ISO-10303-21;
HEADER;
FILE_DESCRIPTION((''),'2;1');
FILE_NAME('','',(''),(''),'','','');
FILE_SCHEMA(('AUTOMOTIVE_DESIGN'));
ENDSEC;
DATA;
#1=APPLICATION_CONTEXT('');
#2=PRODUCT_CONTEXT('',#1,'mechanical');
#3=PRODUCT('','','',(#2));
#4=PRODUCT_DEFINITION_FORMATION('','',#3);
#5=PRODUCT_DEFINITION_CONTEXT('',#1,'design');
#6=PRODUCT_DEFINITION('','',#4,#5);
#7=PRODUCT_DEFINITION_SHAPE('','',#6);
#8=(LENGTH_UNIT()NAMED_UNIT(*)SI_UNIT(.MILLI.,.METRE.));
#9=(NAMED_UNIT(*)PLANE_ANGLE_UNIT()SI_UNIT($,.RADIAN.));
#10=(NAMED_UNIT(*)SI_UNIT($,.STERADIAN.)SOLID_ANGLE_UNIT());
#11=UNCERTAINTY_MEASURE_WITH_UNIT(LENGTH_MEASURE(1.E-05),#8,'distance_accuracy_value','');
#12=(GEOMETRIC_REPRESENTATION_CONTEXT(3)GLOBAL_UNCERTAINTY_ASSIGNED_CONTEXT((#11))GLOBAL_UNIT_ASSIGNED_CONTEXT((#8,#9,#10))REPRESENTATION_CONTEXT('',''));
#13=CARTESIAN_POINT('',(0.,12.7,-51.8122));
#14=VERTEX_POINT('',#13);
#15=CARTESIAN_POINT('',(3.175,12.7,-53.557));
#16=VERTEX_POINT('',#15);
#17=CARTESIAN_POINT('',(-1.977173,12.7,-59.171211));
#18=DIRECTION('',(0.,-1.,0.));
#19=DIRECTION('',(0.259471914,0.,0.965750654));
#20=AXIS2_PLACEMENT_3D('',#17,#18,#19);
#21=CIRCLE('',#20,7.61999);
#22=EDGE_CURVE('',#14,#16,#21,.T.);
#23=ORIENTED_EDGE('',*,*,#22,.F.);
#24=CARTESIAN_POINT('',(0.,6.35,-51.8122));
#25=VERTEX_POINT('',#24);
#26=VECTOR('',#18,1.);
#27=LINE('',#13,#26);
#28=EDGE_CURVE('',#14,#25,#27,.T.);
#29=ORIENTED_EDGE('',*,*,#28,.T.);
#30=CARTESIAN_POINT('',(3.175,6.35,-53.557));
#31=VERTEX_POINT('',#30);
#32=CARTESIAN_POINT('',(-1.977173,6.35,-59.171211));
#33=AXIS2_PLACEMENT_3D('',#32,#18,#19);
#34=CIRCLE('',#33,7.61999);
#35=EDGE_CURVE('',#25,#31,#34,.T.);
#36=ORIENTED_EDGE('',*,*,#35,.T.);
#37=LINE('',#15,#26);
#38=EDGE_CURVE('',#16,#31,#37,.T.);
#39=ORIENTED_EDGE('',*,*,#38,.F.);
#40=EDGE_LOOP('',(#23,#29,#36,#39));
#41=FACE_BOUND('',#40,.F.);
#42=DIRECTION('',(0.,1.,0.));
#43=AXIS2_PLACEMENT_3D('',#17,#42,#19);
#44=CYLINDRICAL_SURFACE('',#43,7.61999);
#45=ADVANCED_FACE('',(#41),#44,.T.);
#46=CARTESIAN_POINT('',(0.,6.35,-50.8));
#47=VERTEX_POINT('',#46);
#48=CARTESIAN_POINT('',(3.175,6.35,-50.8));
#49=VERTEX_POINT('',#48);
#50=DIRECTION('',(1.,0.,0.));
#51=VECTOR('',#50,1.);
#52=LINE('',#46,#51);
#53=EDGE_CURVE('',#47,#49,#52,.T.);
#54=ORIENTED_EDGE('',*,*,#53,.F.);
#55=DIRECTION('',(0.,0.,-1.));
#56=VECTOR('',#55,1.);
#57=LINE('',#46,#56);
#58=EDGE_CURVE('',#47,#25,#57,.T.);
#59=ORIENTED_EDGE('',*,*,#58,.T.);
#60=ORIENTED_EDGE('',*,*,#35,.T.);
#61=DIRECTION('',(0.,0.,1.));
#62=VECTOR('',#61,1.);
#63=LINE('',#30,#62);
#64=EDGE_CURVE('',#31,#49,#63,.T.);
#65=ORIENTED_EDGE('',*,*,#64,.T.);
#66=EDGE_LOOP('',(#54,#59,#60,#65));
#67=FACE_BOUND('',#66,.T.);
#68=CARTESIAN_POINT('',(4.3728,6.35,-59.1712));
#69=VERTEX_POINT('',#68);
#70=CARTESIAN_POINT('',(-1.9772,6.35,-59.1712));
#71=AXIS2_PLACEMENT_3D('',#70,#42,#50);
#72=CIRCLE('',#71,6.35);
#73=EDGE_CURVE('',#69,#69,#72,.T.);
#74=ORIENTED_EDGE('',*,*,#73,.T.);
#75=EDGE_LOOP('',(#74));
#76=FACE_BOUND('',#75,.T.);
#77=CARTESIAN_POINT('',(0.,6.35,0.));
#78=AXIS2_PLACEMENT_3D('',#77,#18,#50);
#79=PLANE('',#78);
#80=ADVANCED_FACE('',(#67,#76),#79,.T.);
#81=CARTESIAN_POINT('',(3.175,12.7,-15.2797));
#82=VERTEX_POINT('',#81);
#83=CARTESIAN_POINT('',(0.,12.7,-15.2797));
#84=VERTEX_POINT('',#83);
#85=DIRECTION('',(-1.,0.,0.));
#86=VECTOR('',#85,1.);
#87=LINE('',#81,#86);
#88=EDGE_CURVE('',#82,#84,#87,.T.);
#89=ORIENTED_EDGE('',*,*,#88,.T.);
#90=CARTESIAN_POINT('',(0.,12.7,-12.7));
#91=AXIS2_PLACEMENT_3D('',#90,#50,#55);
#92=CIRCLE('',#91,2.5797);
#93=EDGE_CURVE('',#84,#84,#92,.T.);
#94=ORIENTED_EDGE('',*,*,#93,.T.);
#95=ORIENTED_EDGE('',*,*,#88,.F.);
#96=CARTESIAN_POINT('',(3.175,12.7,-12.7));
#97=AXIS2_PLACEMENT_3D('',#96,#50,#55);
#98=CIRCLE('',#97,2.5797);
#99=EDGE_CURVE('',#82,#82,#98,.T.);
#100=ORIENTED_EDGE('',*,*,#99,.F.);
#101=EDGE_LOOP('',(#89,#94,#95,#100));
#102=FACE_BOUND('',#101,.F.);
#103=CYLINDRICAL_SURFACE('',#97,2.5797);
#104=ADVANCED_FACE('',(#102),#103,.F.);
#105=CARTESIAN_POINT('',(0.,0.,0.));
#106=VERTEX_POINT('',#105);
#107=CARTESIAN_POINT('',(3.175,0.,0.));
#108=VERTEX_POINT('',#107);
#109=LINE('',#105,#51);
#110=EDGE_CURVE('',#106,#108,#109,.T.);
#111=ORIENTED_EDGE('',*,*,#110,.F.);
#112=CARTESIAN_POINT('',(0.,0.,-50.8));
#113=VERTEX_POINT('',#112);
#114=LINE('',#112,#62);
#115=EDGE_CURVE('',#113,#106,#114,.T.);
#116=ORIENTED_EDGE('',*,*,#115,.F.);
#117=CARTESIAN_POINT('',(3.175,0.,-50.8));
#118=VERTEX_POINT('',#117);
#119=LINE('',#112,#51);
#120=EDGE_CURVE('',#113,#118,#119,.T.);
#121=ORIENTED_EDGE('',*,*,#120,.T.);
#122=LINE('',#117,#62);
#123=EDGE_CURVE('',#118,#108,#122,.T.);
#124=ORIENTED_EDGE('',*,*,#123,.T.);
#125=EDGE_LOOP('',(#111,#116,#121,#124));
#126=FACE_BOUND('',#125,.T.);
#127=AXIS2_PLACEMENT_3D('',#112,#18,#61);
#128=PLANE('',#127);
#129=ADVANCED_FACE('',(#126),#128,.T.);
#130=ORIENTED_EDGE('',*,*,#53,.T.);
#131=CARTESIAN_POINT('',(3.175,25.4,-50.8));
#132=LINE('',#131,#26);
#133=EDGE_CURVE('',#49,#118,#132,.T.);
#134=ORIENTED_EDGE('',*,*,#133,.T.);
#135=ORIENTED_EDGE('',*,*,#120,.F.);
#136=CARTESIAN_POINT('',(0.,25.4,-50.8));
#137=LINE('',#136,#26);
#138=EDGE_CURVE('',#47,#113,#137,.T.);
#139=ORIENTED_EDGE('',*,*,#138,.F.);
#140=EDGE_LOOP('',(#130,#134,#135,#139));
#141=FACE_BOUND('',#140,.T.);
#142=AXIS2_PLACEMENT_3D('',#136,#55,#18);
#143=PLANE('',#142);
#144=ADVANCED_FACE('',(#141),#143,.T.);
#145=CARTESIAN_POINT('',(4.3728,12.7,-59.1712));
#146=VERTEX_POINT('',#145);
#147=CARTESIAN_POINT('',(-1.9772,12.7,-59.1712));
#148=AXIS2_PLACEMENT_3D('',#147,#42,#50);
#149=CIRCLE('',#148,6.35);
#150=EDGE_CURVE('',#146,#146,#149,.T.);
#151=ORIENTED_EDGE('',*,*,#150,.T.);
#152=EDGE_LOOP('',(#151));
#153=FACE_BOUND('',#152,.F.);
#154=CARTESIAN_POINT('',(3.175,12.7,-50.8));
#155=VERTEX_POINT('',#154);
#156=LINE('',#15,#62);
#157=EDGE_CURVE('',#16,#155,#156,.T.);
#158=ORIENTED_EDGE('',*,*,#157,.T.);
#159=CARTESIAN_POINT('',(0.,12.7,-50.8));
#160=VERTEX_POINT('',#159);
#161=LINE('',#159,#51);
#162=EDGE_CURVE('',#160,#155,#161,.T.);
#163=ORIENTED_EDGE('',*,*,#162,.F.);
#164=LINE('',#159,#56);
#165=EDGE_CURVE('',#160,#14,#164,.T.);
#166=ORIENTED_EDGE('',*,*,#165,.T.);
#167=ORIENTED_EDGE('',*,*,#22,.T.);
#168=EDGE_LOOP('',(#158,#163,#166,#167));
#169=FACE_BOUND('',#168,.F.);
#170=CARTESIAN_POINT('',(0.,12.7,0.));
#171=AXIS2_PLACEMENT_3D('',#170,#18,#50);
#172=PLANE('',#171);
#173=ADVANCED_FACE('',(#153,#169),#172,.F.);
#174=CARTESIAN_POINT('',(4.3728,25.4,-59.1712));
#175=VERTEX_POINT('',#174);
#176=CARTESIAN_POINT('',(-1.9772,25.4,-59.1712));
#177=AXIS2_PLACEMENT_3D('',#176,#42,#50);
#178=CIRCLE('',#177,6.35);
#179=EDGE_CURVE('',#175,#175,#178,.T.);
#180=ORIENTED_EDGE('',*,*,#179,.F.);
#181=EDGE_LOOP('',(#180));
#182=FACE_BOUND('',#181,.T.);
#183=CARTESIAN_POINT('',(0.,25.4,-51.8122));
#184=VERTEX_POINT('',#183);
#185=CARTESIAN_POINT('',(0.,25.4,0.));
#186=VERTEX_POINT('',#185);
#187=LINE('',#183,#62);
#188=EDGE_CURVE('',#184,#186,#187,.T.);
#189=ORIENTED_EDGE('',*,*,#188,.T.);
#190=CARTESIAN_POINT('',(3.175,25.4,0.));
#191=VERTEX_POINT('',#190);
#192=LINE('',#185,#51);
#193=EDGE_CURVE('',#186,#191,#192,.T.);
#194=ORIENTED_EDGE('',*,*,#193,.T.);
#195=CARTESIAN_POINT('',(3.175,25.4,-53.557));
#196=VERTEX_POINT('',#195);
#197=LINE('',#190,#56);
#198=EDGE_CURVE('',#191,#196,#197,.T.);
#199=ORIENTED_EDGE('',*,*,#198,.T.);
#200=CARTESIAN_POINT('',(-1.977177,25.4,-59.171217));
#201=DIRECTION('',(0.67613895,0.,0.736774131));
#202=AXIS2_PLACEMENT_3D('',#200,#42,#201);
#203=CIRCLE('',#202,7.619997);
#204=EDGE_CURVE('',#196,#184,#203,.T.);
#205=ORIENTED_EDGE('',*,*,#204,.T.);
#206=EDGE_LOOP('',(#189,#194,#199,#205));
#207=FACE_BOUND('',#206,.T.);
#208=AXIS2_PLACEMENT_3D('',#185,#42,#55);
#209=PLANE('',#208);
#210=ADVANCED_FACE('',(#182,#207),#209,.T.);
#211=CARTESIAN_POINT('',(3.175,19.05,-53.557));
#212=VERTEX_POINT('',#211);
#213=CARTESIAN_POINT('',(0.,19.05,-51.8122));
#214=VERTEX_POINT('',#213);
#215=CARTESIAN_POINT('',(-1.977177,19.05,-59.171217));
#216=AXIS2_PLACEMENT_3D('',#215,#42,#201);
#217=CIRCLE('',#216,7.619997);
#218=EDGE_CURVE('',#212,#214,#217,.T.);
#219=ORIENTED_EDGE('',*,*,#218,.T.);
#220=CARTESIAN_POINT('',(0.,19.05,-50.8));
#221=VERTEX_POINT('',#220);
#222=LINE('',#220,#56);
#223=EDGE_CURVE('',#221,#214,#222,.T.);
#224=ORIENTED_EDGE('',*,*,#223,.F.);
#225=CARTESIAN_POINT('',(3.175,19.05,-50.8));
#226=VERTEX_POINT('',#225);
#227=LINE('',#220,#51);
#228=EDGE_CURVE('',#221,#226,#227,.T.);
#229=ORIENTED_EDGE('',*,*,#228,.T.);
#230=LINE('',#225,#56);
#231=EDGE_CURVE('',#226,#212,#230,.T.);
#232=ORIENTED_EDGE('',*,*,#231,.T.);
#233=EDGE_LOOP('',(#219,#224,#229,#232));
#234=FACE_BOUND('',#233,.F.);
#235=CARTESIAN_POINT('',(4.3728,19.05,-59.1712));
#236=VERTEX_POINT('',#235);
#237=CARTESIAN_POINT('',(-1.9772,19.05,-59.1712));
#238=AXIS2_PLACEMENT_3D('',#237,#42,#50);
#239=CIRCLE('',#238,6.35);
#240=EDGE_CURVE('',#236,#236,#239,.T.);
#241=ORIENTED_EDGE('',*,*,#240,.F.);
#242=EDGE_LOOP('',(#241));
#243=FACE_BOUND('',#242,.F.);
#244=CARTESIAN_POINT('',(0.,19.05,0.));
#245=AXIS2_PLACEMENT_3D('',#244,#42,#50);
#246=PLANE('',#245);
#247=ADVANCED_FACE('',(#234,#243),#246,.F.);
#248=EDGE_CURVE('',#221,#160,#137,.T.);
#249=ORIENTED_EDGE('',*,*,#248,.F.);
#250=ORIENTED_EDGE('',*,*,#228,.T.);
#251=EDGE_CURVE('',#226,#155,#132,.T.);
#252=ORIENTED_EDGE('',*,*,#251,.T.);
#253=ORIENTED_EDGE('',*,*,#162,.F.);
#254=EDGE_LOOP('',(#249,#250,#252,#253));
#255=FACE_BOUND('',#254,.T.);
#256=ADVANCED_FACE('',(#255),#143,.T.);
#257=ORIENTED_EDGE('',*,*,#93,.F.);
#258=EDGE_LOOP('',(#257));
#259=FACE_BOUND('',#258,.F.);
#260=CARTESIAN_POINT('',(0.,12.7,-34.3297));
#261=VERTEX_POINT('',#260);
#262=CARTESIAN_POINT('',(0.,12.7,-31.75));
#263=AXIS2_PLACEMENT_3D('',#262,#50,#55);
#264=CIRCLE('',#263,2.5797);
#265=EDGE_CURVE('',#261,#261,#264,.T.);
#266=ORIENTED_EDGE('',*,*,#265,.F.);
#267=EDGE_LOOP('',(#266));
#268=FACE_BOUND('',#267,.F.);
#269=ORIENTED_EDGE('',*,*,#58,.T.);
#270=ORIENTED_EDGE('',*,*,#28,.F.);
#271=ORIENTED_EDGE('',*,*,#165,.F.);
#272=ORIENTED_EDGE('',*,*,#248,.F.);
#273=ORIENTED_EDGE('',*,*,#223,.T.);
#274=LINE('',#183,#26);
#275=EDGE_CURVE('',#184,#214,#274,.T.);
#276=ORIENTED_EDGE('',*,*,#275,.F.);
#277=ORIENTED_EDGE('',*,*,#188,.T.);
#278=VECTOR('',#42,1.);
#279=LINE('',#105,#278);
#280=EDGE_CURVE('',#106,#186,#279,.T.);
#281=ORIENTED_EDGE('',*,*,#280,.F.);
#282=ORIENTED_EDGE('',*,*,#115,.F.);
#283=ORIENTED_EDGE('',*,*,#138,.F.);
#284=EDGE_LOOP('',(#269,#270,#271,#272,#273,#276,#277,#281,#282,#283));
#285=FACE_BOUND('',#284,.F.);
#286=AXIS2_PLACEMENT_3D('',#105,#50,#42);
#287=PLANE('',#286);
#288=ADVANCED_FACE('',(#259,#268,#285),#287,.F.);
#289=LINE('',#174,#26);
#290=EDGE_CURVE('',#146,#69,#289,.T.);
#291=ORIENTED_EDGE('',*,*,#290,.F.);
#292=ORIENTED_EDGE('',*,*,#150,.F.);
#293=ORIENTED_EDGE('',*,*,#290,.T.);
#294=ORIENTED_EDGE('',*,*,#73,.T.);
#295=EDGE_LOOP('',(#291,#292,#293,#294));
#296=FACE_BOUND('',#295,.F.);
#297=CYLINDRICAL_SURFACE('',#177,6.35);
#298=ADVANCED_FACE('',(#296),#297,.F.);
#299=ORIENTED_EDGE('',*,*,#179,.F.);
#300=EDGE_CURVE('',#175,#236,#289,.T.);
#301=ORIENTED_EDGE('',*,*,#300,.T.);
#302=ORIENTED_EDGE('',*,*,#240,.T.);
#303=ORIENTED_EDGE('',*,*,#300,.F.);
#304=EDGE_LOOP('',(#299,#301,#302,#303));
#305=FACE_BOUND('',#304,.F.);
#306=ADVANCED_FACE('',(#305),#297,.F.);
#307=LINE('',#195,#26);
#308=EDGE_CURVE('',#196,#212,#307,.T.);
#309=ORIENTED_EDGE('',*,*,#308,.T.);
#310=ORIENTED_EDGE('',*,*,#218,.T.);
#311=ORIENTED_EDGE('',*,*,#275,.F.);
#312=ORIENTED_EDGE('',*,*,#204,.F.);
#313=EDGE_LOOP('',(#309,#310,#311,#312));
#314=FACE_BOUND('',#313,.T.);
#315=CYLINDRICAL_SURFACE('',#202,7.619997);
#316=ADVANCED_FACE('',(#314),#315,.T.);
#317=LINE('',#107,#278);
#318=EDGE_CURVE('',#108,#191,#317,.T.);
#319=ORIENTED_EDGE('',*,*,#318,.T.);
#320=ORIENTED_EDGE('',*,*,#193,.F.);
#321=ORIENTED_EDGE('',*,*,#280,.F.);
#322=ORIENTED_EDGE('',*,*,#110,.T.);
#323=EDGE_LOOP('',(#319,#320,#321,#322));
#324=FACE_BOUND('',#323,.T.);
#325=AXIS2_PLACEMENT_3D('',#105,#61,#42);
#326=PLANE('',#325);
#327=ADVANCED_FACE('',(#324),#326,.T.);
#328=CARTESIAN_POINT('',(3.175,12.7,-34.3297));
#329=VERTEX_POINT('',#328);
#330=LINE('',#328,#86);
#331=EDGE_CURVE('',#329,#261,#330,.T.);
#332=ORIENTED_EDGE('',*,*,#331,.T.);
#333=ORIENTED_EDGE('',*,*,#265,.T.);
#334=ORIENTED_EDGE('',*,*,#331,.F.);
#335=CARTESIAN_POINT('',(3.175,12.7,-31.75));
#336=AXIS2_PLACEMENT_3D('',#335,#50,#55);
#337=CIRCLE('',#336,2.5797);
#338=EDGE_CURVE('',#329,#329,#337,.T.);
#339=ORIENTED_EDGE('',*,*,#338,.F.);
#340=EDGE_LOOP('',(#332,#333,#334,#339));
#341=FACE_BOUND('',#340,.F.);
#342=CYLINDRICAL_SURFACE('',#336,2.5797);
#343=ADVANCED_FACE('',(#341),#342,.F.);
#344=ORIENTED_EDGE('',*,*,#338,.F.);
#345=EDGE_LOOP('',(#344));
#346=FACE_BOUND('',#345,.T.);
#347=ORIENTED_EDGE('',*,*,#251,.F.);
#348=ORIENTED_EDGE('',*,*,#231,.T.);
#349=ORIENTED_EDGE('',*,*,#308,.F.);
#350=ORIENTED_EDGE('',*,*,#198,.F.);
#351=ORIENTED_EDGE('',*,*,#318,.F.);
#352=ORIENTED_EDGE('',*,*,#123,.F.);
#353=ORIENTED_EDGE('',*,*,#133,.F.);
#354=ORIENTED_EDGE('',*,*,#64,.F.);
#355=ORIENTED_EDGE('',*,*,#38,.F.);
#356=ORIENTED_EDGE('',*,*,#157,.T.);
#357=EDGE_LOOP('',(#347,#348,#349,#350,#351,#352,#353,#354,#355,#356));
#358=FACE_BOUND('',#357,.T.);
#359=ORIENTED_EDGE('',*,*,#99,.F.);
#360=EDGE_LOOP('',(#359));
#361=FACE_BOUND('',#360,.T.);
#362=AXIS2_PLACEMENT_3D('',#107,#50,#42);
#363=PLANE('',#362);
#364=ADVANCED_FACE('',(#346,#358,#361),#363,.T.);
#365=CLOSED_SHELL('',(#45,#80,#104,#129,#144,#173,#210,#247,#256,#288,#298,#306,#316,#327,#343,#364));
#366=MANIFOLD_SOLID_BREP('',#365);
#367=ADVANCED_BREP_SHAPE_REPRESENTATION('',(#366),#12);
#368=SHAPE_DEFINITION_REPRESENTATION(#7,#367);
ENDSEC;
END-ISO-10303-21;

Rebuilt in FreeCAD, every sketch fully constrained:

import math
import FreeCAD as App
import Part
import Sketcher

V = App.Vector
Q = App.Units.Quantity

doc = App.newDocument("Part")
body = doc.addObject("PartDesign::Body", "Body")

sketch1 = body.newObject("Sketcher::SketchObject", "Sketch")
sketch1.AttachmentSupport = (doc.getObject("YZ_Plane"), [""])
sketch1.MapMode = "FlatFace"
sketch1.addGeometry([
    Part.LineSegment(V(25, 0, 0), V(0, 0, 0)),
    Part.LineSegment(V(0, 0, 0), V(0, -51, 0)),
    Part.LineSegment(V(0, -51, 0), V(25, -51, 0)),
    Part.LineSegment(V(25, -51, 0), V(25, 0, 0)),
], False)
sketch1.addConstraint([
    Sketcher.Constraint("Coincident", 0, 2, 1, 1),
    Sketcher.Constraint("Coincident", 1, 2, 2, 1),
    Sketcher.Constraint("Coincident", 2, 2, 3, 1),
    Sketcher.Constraint("Coincident", 3, 2, 0, 1),
    Sketcher.Constraint("Horizontal", 0),
    Sketcher.Constraint("Vertical", 1),
    Sketcher.Constraint("Horizontal", 2),
    Sketcher.Constraint("Vertical", 3),
    Sketcher.Constraint("Coincident", 0, 2, -1, 1),
    Sketcher.Constraint("DistanceX", 0, 2, 0, 1, Q("1 in")),
    Sketcher.Constraint("DistanceY", 1, 2, 1, 1, Q("2 in")),
])
pad1 = body.newObject("PartDesign::Pad", "Pad")
pad1.Profile = sketch1
pad1.Length = Q("0.125 in")

sketch2 = body.newObject("Sketcher::SketchObject", "Sketch001")
sketch2.AttachmentSupport = (doc.getObject("XZ_Plane"), [""])
sketch2.MapMode = "FlatFace"
sketch2.AttachmentOffset = App.Placement(V(0, 0, -1 * 25.4), App.Rotation())
sketch2.addGeometry([
    Part.LineSegment(V(0, -51.8, 0), V(0, -50.8, 0)),
    Part.LineSegment(V(0, -50.8, 0), V(3.2, -50.8, 0)),
    Part.LineSegment(V(3.2, -50.8, 0), V(3.2, -53.6, 0)),
    Part.ArcOfCircle(Part.Circle(V(-2, -59.2, 0), V(0, 0, 1), 7.6), math.radians(75), math.radians(407)),
], False)
sketch2.addConstraint([
    Sketcher.Constraint("Coincident", 0, 2, 1, 1),
    Sketcher.Constraint("Coincident", 1, 2, 2, 1),
    Sketcher.Constraint("Coincident", 2, 2, 3, 2),
    Sketcher.Constraint("Coincident", 3, 1, 0, 1),
    Sketcher.Constraint("Vertical", 0),
    Sketcher.Constraint("Horizontal", 1),
    Sketcher.Constraint("Vertical", 2),
    Sketcher.Constraint("PointOnObject", 0, 2, -2),
    Sketcher.Constraint("Radius", 3, Q("0.3 in")),
    Sketcher.Constraint("DistanceY", 0, 2, -1, 1, Q("2 in")),
    Sketcher.Constraint("DistanceX", 1, 1, 1, 2, Q("0.125 in")),
    Sketcher.Constraint("DistanceY", 0, 1, 0, 2, Q("1.0122 mm")),
    Sketcher.Constraint("DistanceY", 2, 2, 2, 1, Q("2.757 mm")),
])
pad2 = body.newObject("PartDesign::Pad", "Pad001")
pad2.Profile = sketch2
pad2.Length = Q("0.25 in")

sketch3 = body.newObject("Sketcher::SketchObject", "Sketch002")
sketch3.AttachmentSupport = (doc.getObject("XZ_Plane"), [""])
sketch3.MapMode = "FlatFace"
sketch3.AttachmentOffset = App.Placement(V(0, 0, -0.5 * 25.4), App.Rotation())
sketch3.addGeometry([
    Part.LineSegment(V(0, -50.8, 0), V(0, -51.8, 0)),
    Part.ArcOfCircle(Part.Circle(V(-2, -59.2, 0), V(0, 0, 1), 7.6), math.radians(75), math.radians(407)),
    Part.LineSegment(V(3.2, -53.6, 0), V(3.2, -50.8, 0)),
    Part.LineSegment(V(3.2, -50.8, 0), V(0, -50.8, 0)),
], False)
sketch3.addConstraint([
    Sketcher.Constraint("Coincident", 0, 2, 1, 1),
    Sketcher.Constraint("Coincident", 1, 2, 2, 1),
    Sketcher.Constraint("Coincident", 2, 2, 3, 1),
    Sketcher.Constraint("Coincident", 3, 2, 0, 1),
    Sketcher.Constraint("Vertical", 0),
    Sketcher.Constraint("Vertical", 2),
    Sketcher.Constraint("Horizontal", 3),
    Sketcher.Constraint("PointOnObject", 0, 2, -2),
    Sketcher.Constraint("Radius", 1, Q("0.3 in")),
    Sketcher.Constraint("DistanceY", 2, 2, -1, 1, Q("2 in")),
    Sketcher.Constraint("DistanceX", 3, 2, 3, 1, Q("0.125 in")),
    Sketcher.Constraint("DistanceY", 0, 2, 0, 1, Q("1.0122 mm")),
    Sketcher.Constraint("DistanceY", 2, 1, 2, 2, Q("2.757 mm")),
])
pad3 = body.newObject("PartDesign::Pad", "Pad002")
pad3.Profile = sketch3
pad3.Length = Q("0.25 in")

sketch4 = body.newObject("Sketcher::SketchObject", "Sketch003")
sketch4.AttachmentSupport = (doc.getObject("XZ_Plane"), [""])
sketch4.MapMode = "FlatFace"
sketch4.AttachmentOffset = App.Placement(V(0, 0, -1 * 25.4), App.Rotation())
sketch4.addGeometry(Part.Circle(V(-2, -59, 0), V(0, 0, 1), 6), False)
sketch4.addConstraint([
    Sketcher.Constraint("Diameter", 0, Q("0.5 in")),
    Sketcher.Constraint("DistanceX", 0, 3, -1, 1, Q("1.9772 mm")),
    Sketcher.Constraint("DistanceY", 0, 3, -1, 1, Q("59.1712 mm")),
])
pocket1 = body.newObject("PartDesign::Pocket", "Pocket")
pocket1.Profile = sketch4
pocket1.Length = Q("5 in")
pocket1.Reversed = True

sketch5 = body.newObject("Sketcher::SketchObject", "Sketch004")
sketch5.AttachmentSupport = (doc.getObject("YZ_Plane"), [""])
sketch5.MapMode = "FlatFace"
sketch5.AttachmentOffset = App.Placement(V(0, 0, 0.125 * 25.4), App.Rotation())
sketch5.addGeometry([
    Part.Circle(V(12.7, -12.7, 0), V(0, 0, 1), 2.6),
    Part.Circle(V(12.7, -31.8, 0), V(0, 0, 1), 2.6),
], False)
sketch5.addConstraint([
    Sketcher.Constraint("Equal", 0, 1),
    Sketcher.Constraint("Vertical", 0, 3, 1, 3),
    Sketcher.Constraint("Diameter", 0, Q("0.203126 in")),
    Sketcher.Constraint("DistanceX", -1, 1, 0, 3, Q("0.5 in")),
    Sketcher.Constraint("DistanceY", 0, 3, -1, 1, Q("0.5 in")),
    Sketcher.Constraint("DistanceY", 1, 3, 0, 3, Q("0.75 in")),
])
pocket2 = body.newObject("PartDesign::Pocket", "Pocket001")
pocket2.Profile = sketch5
pocket2.Length = Q("5 in")

doc.recompute()
